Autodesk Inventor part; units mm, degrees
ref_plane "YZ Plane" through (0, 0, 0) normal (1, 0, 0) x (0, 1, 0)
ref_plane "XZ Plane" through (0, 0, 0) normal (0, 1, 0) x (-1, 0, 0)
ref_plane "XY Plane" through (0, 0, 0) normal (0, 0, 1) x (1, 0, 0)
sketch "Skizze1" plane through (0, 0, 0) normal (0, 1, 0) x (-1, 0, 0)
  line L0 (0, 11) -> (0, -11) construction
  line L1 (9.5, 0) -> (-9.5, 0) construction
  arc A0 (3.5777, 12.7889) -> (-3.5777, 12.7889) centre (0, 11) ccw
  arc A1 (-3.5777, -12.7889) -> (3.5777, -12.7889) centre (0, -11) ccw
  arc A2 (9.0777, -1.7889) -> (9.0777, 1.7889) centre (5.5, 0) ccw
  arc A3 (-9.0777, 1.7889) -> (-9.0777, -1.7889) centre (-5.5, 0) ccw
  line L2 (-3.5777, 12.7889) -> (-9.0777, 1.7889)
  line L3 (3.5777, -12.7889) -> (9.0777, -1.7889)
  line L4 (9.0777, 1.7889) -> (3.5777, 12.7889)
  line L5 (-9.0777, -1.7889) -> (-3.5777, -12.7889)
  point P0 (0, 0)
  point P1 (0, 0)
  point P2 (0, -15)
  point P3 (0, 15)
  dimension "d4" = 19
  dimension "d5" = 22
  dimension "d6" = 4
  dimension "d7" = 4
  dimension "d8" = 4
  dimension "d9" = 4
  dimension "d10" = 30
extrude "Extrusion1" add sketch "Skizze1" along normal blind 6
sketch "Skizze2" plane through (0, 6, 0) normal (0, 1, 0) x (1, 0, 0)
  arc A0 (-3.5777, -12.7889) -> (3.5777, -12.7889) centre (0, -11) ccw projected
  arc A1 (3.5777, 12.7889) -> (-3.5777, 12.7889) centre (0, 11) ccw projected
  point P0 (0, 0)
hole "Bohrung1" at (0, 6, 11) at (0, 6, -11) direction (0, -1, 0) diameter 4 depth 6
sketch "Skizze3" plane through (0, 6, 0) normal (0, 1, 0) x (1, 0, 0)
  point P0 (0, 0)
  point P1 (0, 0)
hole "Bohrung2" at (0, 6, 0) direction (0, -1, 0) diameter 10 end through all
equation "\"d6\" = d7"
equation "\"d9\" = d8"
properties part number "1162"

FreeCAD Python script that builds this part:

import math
import FreeCAD as App
import Part
import Sketcher
from FreeCAD import Vector
Q = App.Units.Quantity

doc = App.newDocument("Part")
body = doc.addObject("PartDesign::Body", "Body")

# Sketch on XZ plane
sketch1 = body.newObject("Sketcher::SketchObject", "Sketch")
sketch1.AttachmentSupport = (doc.getObject("XZ_Plane"), [""])
sketch1.MapMode = "FlatFace"
sketch1.addGeometry([
    Part.LineSegment(Vector(-9.1, 1.8, 0), Vector(-3.6, 12.8, 0)),  # 0
    Part.ArcOfCircle(Part.Circle(Vector(0, 11, 0), Vector(0, 0, 1), 4), math.radians(27), math.radians(153)),  # 1
    Part.LineSegment(Vector(3.6, 12.8, 0), Vector(9.1, 1.8, 0)),  # 2
    Part.ArcOfCircle(Part.Circle(Vector(5.5, 0, 0), Vector(0, 0, 1), 4), math.radians(-27), math.radians(27)),  # 3
    Part.LineSegment(Vector(9.1, -1.8, 0), Vector(3.6, -12.8, 0)),  # 4
    Part.ArcOfCircle(Part.Circle(Vector(0, -11, 0), Vector(0, 0, 1), 4), math.radians(-153), math.radians(-27)),  # 5
    Part.LineSegment(Vector(-3.6, -12.8, 0), Vector(-9.1, -1.8, 0)),  # 6
    Part.ArcOfCircle(Part.Circle(Vector(-5.5, 0, 0), Vector(0, 0, 1), 4), math.radians(153), math.radians(207)),  # 7
], False)
sketch1.addConstraint([
    Sketcher.Constraint("Tangent", 0, 2, 1, 2),
    Sketcher.Constraint("Tangent", 1, 1, 2, 1),
    Sketcher.Constraint("Tangent", 2, 2, 3, 2),
    Sketcher.Constraint("Tangent", 3, 1, 4, 1),
    Sketcher.Constraint("Tangent", 4, 2, 5, 2),
    Sketcher.Constraint("Tangent", 5, 1, 6, 1),
    Sketcher.Constraint("Tangent", 6, 2, 7, 2),
    Sketcher.Constraint("Tangent", 7, 1, 0, 1),
    Sketcher.Constraint("Equal", 1, 3),
    Sketcher.Constraint("Equal", 3, 5),
    Sketcher.Constraint("Equal", 5, 7),
    Sketcher.Constraint("Symmetric", 1, 3, 5, 3, -1, 1),
    Sketcher.Constraint("Symmetric", 3, 3, 7, 3, -1, 1),
    Sketcher.Constraint("Symmetric", 0, 2, 1, 1, -2),
    Sketcher.Constraint("Radius", 1, Q("4 mm")),
    Sketcher.Constraint("DistanceY", 5, 3, 1, 3, Q("22 mm")),
    Sketcher.Constraint("DistanceX", 7, 3, 3, 3, Q("11 mm")),
])
pad1 = body.newObject("PartDesign::Pad", "Pad")
pad1.Profile = sketch1
pad1.Length = 6
pad1.Reversed = True

# Sketch on XZ plane
sketch2 = body.newObject("Sketcher::SketchObject", "Sketch001")
sketch2.AttachmentSupport = (doc.getObject("XZ_Plane"), [""])
sketch2.MapMode = "FlatFace"
sketch2.AttachmentOffset = App.Placement(Vector(0, 0, -6), App.Rotation())
sketch2.addGeometry([
    Part.Circle(Vector(0, 11, 0), Vector(0, 0, 1), 2),
    Part.Circle(Vector(0, -11, 0), Vector(0, 0, 1), 2),
], False)
sketch2.addConstraint([
    Sketcher.Constraint("Equal", 0, 1),
    Sketcher.Constraint("Symmetric", 0, 3, 1, 3, -1, 1),
    Sketcher.Constraint("PointOnObject", 0, 3, -2),
    Sketcher.Constraint("Diameter", 0, Q("4 mm")),
    Sketcher.Constraint("DistanceY", -1, 1, 0, 3, Q("11 mm")),
])
doc.recompute()
hole = body.newObject("PartDesign::Hole", "Hole")
hole.Profile = sketch2
hole.ThreadType = "None"
hole.Diameter = 4
hole.DepthType = "Dimension"
hole.Depth = 6
hole.DrillPoint = "Flat"
hole.Reversed = True

# Sketch on XZ plane
sketch3 = body.newObject("Sketcher::SketchObject", "Sketch002")
sketch3.AttachmentSupport = (doc.getObject("XZ_Plane"), [""])
sketch3.MapMode = "FlatFace"
sketch3.AttachmentOffset = App.Placement(Vector(0, 0, -6), App.Rotation())
sketch3.addGeometry(Part.Circle(Vector(0, 0, 0), Vector(0, 0, 1), 5), False)
sketch3.addConstraint([
    Sketcher.Constraint("Coincident", 0, 3, -1, 1),
    Sketcher.Constraint("Diameter", 0, Q("10 mm")),
])
doc.recompute()
hole2 = body.newObject("PartDesign::Hole", "Hole001")
hole2.Profile = sketch3
hole2.ThreadType = "None"
hole2.Diameter = 10
hole2.DepthType = "ThroughAll"
hole2.Reversed = True

doc.recompute()
